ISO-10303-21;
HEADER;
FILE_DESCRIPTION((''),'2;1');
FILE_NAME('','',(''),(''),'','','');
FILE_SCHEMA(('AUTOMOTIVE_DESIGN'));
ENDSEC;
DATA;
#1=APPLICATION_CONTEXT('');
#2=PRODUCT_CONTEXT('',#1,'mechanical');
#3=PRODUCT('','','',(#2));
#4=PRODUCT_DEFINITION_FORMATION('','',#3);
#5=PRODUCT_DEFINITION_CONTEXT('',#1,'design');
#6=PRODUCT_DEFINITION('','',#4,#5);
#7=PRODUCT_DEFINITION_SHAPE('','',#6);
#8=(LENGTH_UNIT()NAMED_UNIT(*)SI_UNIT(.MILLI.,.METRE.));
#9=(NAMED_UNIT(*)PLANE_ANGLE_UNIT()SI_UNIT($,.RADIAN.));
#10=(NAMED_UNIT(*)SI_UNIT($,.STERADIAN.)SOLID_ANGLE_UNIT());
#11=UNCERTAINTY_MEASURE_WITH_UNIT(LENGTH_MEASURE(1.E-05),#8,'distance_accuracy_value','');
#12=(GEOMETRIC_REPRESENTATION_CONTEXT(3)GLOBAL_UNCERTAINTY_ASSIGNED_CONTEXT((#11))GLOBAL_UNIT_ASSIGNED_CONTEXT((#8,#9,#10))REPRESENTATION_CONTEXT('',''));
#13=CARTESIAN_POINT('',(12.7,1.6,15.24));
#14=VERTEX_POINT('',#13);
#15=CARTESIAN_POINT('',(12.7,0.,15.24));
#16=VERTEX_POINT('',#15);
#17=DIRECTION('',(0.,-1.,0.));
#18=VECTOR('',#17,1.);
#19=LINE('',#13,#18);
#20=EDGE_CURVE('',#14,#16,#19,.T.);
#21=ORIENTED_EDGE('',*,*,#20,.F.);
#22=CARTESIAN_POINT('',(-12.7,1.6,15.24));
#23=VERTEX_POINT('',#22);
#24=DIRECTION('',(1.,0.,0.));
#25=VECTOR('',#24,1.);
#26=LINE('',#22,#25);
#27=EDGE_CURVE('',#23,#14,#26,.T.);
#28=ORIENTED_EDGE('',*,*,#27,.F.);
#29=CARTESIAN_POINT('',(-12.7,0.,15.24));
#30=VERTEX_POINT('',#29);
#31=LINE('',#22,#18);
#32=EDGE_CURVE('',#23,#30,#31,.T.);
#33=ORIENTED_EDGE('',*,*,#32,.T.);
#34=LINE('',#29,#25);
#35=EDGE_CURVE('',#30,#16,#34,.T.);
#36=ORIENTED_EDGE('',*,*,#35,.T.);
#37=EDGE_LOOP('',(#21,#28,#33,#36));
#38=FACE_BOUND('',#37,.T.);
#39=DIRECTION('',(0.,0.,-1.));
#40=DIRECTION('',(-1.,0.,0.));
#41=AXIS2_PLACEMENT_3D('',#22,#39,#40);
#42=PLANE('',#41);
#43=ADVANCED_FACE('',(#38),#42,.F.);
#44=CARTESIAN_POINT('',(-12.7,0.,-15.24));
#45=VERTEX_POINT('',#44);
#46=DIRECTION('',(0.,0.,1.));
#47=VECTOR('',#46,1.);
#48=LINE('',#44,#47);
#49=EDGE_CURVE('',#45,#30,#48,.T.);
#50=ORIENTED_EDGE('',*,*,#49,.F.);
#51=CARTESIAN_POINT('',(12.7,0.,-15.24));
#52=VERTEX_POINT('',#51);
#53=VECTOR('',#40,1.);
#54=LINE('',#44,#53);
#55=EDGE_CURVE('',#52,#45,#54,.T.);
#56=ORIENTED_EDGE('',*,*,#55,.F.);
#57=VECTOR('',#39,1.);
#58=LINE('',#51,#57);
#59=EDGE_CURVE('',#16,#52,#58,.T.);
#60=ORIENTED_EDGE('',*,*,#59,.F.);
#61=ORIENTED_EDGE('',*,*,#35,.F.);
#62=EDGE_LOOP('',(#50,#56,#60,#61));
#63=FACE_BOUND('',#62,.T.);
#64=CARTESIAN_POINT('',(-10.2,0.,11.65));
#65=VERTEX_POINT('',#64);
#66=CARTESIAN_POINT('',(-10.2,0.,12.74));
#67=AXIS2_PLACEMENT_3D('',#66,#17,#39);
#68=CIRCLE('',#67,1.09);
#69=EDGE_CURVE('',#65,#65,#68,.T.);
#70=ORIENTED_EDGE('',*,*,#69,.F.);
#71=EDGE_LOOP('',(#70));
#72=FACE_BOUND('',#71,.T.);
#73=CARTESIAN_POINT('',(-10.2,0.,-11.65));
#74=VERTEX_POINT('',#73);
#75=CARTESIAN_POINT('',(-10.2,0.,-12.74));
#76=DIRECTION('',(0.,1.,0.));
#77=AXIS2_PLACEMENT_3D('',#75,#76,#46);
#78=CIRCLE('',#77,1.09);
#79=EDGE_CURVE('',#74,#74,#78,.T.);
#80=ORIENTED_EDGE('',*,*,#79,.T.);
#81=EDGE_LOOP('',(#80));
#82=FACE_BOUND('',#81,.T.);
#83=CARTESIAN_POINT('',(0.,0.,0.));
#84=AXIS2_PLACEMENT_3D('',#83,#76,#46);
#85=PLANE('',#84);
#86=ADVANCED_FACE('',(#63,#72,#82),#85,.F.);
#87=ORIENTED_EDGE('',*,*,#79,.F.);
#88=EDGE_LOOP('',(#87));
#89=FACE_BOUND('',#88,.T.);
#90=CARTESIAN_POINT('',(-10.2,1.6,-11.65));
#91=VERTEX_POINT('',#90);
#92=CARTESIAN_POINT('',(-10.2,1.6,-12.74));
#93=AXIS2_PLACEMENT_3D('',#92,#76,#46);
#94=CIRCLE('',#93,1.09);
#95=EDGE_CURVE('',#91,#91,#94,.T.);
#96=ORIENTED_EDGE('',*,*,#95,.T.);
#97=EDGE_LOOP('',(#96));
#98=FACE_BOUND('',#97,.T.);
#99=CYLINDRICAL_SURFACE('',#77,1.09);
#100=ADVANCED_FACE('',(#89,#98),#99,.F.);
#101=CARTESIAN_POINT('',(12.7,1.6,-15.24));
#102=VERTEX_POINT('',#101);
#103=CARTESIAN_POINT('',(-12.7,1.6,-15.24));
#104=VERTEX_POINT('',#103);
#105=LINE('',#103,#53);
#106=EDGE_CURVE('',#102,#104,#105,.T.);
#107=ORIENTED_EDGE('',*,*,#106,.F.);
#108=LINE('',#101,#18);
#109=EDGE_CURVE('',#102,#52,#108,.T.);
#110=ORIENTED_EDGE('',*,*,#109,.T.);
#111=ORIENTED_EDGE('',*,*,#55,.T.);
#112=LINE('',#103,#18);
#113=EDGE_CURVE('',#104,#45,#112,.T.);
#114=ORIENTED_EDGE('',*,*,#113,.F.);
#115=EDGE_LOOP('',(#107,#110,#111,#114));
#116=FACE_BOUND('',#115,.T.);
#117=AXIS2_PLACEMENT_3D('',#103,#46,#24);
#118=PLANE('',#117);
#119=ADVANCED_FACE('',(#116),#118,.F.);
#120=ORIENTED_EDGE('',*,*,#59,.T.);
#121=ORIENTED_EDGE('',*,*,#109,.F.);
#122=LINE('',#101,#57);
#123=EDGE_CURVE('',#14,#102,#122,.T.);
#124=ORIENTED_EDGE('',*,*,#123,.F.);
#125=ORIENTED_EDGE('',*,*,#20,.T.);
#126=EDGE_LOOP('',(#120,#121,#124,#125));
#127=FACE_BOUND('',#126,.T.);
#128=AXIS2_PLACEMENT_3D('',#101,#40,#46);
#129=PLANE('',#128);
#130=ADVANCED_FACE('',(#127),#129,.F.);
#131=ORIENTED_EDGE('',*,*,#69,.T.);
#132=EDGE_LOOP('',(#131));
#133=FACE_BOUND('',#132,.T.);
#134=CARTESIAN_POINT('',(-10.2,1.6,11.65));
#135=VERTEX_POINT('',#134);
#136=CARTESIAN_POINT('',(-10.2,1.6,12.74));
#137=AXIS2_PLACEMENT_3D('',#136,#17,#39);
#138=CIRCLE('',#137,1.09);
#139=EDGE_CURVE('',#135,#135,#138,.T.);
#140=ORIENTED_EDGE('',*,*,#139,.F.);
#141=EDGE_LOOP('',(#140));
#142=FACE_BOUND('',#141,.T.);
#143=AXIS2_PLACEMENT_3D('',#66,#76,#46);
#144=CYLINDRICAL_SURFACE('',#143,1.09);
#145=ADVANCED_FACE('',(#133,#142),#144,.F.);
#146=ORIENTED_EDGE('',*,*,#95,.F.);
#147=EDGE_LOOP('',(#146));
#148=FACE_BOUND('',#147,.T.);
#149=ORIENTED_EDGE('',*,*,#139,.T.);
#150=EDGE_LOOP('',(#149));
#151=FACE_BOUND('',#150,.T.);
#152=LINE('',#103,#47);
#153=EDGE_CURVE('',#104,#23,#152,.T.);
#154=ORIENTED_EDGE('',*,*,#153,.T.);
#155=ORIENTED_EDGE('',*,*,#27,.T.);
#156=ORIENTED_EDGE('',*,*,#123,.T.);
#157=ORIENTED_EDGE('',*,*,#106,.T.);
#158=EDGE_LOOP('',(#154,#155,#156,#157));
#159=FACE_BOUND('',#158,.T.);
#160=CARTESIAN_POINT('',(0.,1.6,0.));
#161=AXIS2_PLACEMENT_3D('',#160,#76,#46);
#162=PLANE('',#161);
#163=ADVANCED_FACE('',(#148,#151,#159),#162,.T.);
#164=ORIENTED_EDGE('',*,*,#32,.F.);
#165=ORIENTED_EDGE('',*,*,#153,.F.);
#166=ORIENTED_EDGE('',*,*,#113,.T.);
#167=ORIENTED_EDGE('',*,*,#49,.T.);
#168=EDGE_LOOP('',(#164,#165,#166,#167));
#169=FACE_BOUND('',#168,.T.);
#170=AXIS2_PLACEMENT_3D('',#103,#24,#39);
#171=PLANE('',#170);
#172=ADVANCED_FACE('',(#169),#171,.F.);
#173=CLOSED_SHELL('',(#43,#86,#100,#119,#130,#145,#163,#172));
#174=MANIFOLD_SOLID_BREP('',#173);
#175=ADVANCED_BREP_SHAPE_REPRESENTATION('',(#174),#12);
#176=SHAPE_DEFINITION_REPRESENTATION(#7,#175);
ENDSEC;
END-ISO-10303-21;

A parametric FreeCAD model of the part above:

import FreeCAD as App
import Part
import Sketcher

V = App.Vector
Q = App.Units.Quantity

doc = App.newDocument("Part")
body = doc.addObject("PartDesign::Body", "Body")

# Sketch on XZ plane
sketch1 = body.newObject("Sketcher::SketchObject", "Sketch")
sketch1.AttachmentSupport = (doc.getObject("XZ_Plane"), [""])
sketch1.MapMode = "FlatFace"
sketch1.addGeometry([
    Part.LineSegment(V(-13, -15, 0), V(-13, 15, 0)),
    Part.LineSegment(V(-13, 15, 0), V(13, 15, 0)),
    Part.LineSegment(V(13, 15, 0), V(13, -15, 0)),
    Part.LineSegment(V(13, -15, 0), V(-13, -15, 0)),
], False)
sketch1.addConstraint([
    Sketcher.Constraint("Coincident", 0, 2, 1, 1),
    Sketcher.Constraint("Coincident", 1, 2, 2, 1),
    Sketcher.Constraint("Coincident", 2, 2, 3, 1),
    Sketcher.Constraint("Coincident", 3, 2, 0, 1),
    Sketcher.Constraint("Vertical", 0),
    Sketcher.Constraint("Horizontal", 1),
    Sketcher.Constraint("Vertical", 2),
    Sketcher.Constraint("Horizontal", 3),
    Sketcher.Constraint("Symmetric", 0, 2, 2, 2, -1, 1),
    Sketcher.Constraint("DistanceX", 1, 1, 1, 2, Q("1 in")),
    Sketcher.Constraint("DistanceY", 0, 1, 0, 2, Q("1.2 in")),
])
pad1 = body.newObject("PartDesign::Pad", "Pad")
pad1.Profile = sketch1
pad1.Length = 1.6
pad1.Reversed = True

# Sketch on XZ plane
sketch2 = body.newObject("Sketcher::SketchObject", "Sketch001")
sketch2.AttachmentSupport = (doc.getObject("XZ_Plane"), [""])
sketch2.MapMode = "FlatFace"
sketch2.AttachmentOffset = App.Placement(V(0, 0, -1.6), App.Rotation())
sketch2.addGeometry(Part.Circle(V(-10.2, -12.7, 0), V(0, 0, 1), 1.1), False)
sketch2.addConstraint([
    Sketcher.Constraint("Diameter", 0, 2.18),
    Sketcher.Constraint("DistanceX", 0, 3, -1, 1, 10.2),
    Sketcher.Constraint("DistanceY", 0, 3, -1, 1, 12.74),
])
pocket1 = body.newObject("PartDesign::Pocket", "Pocket")
pocket1.Profile = sketch2
pocket1.Length = 1.6
pocket1.Reversed = True
doc.recompute()

mirrored = body.newObject("PartDesign::Mirrored", "Mirrored")
mirrored.Originals = [pocket1]
mirrored.MirrorPlane = (doc.getObject("XY_Plane"), [""])
body.Tip = mirrored

doc.recompute()
